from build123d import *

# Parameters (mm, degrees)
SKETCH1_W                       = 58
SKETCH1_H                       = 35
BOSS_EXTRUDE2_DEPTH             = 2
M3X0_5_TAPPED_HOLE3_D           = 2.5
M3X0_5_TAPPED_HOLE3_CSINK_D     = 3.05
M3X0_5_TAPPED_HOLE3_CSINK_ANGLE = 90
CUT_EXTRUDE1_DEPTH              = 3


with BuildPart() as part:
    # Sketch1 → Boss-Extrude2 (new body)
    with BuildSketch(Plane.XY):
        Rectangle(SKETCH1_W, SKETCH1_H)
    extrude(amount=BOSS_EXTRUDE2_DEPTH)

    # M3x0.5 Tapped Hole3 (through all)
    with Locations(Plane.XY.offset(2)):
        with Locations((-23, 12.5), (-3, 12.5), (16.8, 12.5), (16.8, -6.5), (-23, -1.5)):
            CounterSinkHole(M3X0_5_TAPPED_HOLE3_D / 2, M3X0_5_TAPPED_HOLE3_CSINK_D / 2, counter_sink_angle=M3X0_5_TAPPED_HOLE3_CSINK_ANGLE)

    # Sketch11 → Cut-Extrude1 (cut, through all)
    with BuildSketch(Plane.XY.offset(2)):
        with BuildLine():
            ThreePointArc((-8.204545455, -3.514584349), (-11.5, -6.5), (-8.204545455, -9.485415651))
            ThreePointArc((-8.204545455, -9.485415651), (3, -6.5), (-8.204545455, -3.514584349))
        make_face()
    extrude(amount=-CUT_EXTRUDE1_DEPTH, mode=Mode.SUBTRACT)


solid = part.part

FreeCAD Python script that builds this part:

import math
import FreeCAD as App
import Part
import Sketcher

V = App.Vector
Q = App.Units.Quantity


def add_polygon(sketch, points):
    """Adds a closed chain of lines whose ends are joined by coincident constraints."""
    first, n = sketch.GeometryCount, len(points)
    for a, b in zip(points, points[1:] + points[:1]):
        sketch.addGeometry(Part.LineSegment(App.Vector(*a, 0), App.Vector(*b, 0)), False)
    for i in range(n):
        sketch.addConstraint(Sketcher.Constraint("Coincident", first + i, 2, first + (i + 1) % n, 1))

doc = App.newDocument("Part")
body = doc.addObject("PartDesign::Body", "Body")

# Sketch on XY plane
sketch1 = body.newObject("Sketcher::SketchObject", "Sketch")
sketch1.AttachmentSupport = (doc.getObject("XY_Plane"), [""])
sketch1.MapMode = "FlatFace"
add_polygon(sketch1, [(-29, 17.5), (-29, -17.5), (29, -17.5), (29, 17.5)])  # lines 0-3
sketch1.addConstraint(Sketcher.Constraint("Vertical", 0))
sketch1.addConstraint(Sketcher.Constraint("Horizontal", 1))
sketch1.addConstraint(Sketcher.Constraint("Vertical", 2))
sketch1.addConstraint(Sketcher.Constraint("Horizontal", 3))
sketch1.addConstraint(Sketcher.Constraint("Symmetric", 0, 2, 2, 2, -1, 1))
sketch1.addConstraint(Sketcher.Constraint("DistanceX", 1, 1, 1, 2, Q("58 mm")))
sketch1.addConstraint(Sketcher.Constraint("DistanceY", 0, 2, 0, 1, Q("35 mm")))
pad1 = body.newObject("PartDesign::Pad", "Pad")
pad1.Profile = sketch1
pad1.Length = 2

# Sketch on XY plane
sketch2 = body.newObject("Sketcher::SketchObject", "Sketch001")
sketch2.AttachmentSupport = (doc.getObject("XY_Plane"), [""])
sketch2.MapMode = "FlatFace"
sketch2.AttachmentOffset = App.Placement(V(0, 0, 2), App.Rotation())
sketch2.addGeometry(Part.Circle(V(-23, 12.5, 0), V(0, 0, 1), 1.25), False)
sketch2.addGeometry(Part.Circle(V(-3, 12.5, 0), V(0, 0, 1), 1.25), False)
sketch2.addGeometry(Part.Circle(V(16.8, 12.5, 0), V(0, 0, 1), 1.25), False)
sketch2.addGeometry(Part.Circle(V(16.8, -6.5, 0), V(0, 0, 1), 1.25), False)
sketch2.addGeometry(Part.Circle(V(-23, -1.5, 0), V(0, 0, 1), 1.25), False)
sketch2.addConstraint(Sketcher.Constraint("Equal", 0, 1))
sketch2.addConstraint(Sketcher.Constraint("Equal", 1, 2))
sketch2.addConstraint(Sketcher.Constraint("Equal", 2, 3))
sketch2.addConstraint(Sketcher.Constraint("Equal", 3, 4))
sketch2.addConstraint(Sketcher.Constraint("Horizontal", 0, 3, 1, 3))
sketch2.addConstraint(Sketcher.Constraint("Horizontal", 1, 3, 2, 3))
sketch2.addConstraint(Sketcher.Constraint("Vertical", 2, 3, 3, 3))
sketch2.addConstraint(Sketcher.Constraint("Vertical", 0, 3, 4, 3))
sketch2.addConstraint(Sketcher.Constraint("Diameter", 0, Q("2.5 mm")))
sketch2.addConstraint(Sketcher.Constraint("DistanceX", 0, 3, -1, 1, Q("23 mm")))
sketch2.addConstraint(Sketcher.Constraint("DistanceX", 1, 3, -1, 1, Q("3 mm")))
sketch2.addConstraint(Sketcher.Constraint("DistanceY", 3, 3, 2, 3, Q("19 mm")))
sketch2.addConstraint(Sketcher.Constraint("DistanceY", 4, 3, 0, 3, Q("14 mm")))
sketch2.addConstraint(Sketcher.Constraint("DistanceY", -1, 1, 0, 3, Q("12.5 mm")))
sketch2.addConstraint(Sketcher.Constraint("DistanceX", -1, 1, 2, 3, Q("16.8 mm")))
doc.recompute()
hole = body.newObject("PartDesign::Hole", "Hole")
hole.Profile = sketch2
hole.ThreadType = "None"
hole.Diameter = 2.5
hole.DepthType = "ThroughAll"
hole.HoleCutType = "Countersink"
hole.HoleCutDiameter = 3.05
hole.HoleCutCountersinkAngle = 90

# Sketch on XY plane
sketch3 = body.newObject("Sketcher::SketchObject", "Sketch002")
sketch3.AttachmentSupport = (doc.getObject("XY_Plane"), [""])
sketch3.MapMode = "FlatFace"
sketch3.AttachmentOffset = App.Placement(V(0, 0, 2), App.Rotation())
sketch3.addGeometry(Part.ArcOfCircle(Part.Circle(V(-8.5, -6.5, 0), V(0, 0, 1), 3), math.radians(84.348072), math.radians(275.651928)), False)
sketch3.addGeometry(Part.ArcOfCircle(Part.Circle(V(-3, -6.5, 0), V(0, 0, 1), 6), math.radians(-150.160686), math.radians(150.160686)), False)
sketch3.addConstraint(Sketcher.Constraint("Coincident", 0, 1, 1, 2))
sketch3.addConstraint(Sketcher.Constraint("Coincident", 1, 1, 0, 2))
sketch3.addConstraint(Sketcher.Constraint("Horizontal", 0, 3, 1, 3))
sketch3.addConstraint(Sketcher.Constraint("Radius", 0, Q("3 mm")))
sketch3.addConstraint(Sketcher.Constraint("Radius", 1, Q("6 mm")))
sketch3.addConstraint(Sketcher.Constraint("DistanceX", 1, 3, -1, 1, Q("3 mm")))
sketch3.addConstraint(Sketcher.Constraint("DistanceX", 0, 3, -1, 1, Q("8.5 mm")))
sketch3.addConstraint(Sketcher.Constraint("DistanceY", 0, 3, -1, 1, Q("6.5 mm")))
pocket1 = body.newObject("PartDesign::Pocket", "Pocket")
pocket1.Profile = sketch3
pocket1.Type = "ThroughAll"

doc.recompute()
